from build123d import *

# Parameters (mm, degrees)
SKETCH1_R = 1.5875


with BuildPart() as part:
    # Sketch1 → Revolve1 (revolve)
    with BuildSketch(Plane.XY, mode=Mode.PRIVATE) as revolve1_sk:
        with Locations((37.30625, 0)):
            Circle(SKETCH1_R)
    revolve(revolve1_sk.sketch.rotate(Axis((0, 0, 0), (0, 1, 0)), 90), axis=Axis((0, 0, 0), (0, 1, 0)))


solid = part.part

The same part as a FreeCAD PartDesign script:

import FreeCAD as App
import Part
import Sketcher
from FreeCAD import Vector
Q = App.Units.Quantity

doc = App.newDocument("Part")
body = doc.addObject("PartDesign::Body", "Body")

sketch1 = body.newObject("Sketcher::SketchObject", "Sketch")
sketch1.AttachmentSupport = (doc.getObject("XY_Plane"), [""])
sketch1.MapMode = "FlatFace"
sketch1.addGeometry(Part.Circle(Vector(37.3, 0, 0), Vector(0, 0, 1), 1.6), False)
sketch1.addConstraint(Sketcher.Constraint("PointOnObject", 0, 3, -1))
sketch1.addConstraint(Sketcher.Constraint("Diameter", 0, Q("0.125 in")))
sketch1.addConstraint(Sketcher.Constraint("DistanceX", -1, 1, 0, 3, Q("1.46875 in")))
revolution = body.newObject("PartDesign::Revolution", "Revolution")
revolution.Profile = sketch1
revolution.ReferenceAxis = (sketch1, ["V_Axis"])
revolution.Angle = 360

doc.recompute()
